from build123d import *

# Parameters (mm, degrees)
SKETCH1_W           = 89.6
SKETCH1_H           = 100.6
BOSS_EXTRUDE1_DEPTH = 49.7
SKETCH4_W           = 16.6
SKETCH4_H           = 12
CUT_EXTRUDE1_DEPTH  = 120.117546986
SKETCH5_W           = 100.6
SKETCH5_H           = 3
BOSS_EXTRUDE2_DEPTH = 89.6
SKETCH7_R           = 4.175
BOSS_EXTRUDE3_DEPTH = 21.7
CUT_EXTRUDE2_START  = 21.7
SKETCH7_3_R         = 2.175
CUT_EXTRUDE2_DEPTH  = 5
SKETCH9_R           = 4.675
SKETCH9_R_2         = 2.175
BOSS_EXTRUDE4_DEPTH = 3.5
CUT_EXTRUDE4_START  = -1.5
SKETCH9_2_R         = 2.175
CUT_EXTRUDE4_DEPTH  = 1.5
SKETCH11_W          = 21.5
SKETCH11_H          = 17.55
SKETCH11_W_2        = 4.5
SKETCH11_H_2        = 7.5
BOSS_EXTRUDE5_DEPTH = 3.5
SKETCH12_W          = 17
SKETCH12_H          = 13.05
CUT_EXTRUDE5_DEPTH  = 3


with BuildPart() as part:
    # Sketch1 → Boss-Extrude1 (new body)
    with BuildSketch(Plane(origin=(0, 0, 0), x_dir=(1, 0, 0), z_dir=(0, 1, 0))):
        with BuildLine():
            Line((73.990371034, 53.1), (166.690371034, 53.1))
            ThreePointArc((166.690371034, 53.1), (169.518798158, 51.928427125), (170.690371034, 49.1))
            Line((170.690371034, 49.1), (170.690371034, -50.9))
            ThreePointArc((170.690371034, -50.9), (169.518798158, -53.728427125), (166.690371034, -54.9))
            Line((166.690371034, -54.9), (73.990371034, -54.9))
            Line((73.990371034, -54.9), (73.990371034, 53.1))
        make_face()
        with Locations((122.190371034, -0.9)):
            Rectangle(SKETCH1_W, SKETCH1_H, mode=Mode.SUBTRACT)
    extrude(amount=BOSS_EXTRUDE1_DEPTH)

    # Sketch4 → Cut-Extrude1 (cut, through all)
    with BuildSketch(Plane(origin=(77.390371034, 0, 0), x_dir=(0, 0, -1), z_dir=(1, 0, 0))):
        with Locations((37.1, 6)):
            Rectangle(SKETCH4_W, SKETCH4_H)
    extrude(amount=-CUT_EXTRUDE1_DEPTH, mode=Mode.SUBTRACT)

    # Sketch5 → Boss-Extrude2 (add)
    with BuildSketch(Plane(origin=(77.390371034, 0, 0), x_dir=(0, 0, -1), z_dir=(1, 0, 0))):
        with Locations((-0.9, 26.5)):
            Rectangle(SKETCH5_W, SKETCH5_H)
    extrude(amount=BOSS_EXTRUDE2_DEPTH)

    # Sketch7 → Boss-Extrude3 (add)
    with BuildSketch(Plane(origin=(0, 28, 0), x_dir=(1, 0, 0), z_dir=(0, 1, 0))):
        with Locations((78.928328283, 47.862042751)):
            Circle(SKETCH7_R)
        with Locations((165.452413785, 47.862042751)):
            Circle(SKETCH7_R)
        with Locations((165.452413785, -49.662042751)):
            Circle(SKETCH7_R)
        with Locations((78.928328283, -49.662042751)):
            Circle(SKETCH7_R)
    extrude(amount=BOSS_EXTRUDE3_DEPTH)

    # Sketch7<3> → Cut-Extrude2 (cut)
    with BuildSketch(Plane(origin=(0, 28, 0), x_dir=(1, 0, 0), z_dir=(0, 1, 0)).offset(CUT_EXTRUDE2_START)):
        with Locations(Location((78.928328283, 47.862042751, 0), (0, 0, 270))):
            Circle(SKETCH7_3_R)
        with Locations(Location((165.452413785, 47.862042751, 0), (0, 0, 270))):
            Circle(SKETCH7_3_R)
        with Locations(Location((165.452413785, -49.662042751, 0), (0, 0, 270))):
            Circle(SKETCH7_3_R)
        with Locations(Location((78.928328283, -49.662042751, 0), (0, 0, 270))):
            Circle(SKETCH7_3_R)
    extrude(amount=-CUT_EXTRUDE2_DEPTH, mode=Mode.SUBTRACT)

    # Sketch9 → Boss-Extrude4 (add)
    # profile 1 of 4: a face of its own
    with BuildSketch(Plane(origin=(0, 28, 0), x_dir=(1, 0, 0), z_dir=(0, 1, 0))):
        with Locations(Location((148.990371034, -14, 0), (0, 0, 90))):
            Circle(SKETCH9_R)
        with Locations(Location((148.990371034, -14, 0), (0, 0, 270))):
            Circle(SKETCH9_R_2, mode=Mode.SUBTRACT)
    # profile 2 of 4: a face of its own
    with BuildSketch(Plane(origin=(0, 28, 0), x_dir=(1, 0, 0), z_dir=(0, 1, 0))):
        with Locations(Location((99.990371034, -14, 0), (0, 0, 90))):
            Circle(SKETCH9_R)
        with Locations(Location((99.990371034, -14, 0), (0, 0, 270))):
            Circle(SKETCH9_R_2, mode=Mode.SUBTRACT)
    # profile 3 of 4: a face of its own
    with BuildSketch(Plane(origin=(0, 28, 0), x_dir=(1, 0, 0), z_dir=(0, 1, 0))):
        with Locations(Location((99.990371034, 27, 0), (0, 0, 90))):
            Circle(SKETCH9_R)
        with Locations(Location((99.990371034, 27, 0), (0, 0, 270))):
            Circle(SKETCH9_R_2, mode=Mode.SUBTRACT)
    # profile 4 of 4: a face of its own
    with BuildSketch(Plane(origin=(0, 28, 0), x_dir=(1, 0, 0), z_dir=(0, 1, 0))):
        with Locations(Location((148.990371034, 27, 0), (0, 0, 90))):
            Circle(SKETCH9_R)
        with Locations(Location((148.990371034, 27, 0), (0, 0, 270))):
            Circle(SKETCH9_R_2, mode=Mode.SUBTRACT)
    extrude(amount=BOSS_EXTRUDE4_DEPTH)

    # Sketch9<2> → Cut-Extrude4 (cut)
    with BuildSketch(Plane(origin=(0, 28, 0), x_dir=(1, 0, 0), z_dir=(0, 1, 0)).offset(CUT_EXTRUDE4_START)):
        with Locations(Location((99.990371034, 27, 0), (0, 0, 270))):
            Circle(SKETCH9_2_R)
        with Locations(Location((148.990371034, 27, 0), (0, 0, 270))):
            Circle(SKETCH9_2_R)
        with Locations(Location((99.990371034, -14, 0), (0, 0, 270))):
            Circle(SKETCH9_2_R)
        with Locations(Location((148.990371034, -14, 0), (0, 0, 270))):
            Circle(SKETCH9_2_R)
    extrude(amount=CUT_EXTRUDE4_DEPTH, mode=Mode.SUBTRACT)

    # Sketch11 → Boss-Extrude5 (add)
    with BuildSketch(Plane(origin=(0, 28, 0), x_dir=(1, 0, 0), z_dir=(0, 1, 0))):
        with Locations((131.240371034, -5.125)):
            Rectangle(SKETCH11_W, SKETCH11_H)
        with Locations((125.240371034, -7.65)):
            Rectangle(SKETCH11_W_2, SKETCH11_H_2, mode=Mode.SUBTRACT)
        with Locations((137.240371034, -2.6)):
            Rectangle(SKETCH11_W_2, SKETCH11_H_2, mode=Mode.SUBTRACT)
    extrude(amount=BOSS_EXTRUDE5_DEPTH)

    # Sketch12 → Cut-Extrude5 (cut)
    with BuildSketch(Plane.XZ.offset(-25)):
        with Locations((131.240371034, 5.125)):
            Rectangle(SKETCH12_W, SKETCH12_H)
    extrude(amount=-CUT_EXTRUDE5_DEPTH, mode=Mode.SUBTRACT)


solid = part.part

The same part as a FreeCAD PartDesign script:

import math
import FreeCAD as App
import Part
import Sketcher

V = App.Vector
Q = App.Units.Quantity


def add_polygon(sketch, points):
    """Adds a closed chain of lines whose ends are joined by coincident constraints."""
    first, n = sketch.GeometryCount, len(points)
    for a, b in zip(points, points[1:] + points[:1]):
        sketch.addGeometry(Part.LineSegment(App.Vector(*a, 0), App.Vector(*b, 0)), False)
    for i in range(n):
        sketch.addConstraint(Sketcher.Constraint("Coincident", first + i, 2, first + (i + 1) % n, 1))

doc = App.newDocument("Part")
body = doc.addObject("PartDesign::Body", "Body")

sketch1 = body.newObject("Sketcher::SketchObject", "Sketch")
sketch1.AttachmentSupport = (doc.getObject("XZ_Plane"), [""])
sketch1.MapMode = "FlatFace"
sketch1.addGeometry(Part.LineSegment(V(166.690371, -53.1, 0), V(73.990371, -53.1, 0)), False)
sketch1.addGeometry(Part.LineSegment(V(73.990371, -53.1, 0), V(73.990371, 54.9, 0)), False)
sketch1.addGeometry(Part.LineSegment(V(73.990371, 54.9, 0), V(166.690371, 54.9, 0)), False)
sketch1.addGeometry(Part.ArcOfCircle(Part.Circle(V(166.690371, 50.9, 0), V(0, 0, 1), 4), math.radians(0), math.radians(90)), False)
sketch1.addGeometry(Part.LineSegment(V(170.690371, 50.9, 0), V(170.690371, -49.1, 0)), False)
sketch1.addGeometry(Part.ArcOfCircle(Part.Circle(V(166.690371, -49.1, 0), V(0, 0, 1), 4), math.radians(-90), math.radians(0)), False)
add_polygon(sketch1, [(77.390371, 51.2), (77.390371, -49.4), (166.990371, -49.4), (166.990371, 51.2)])
sketch1.addConstraint([
    Sketcher.Constraint("Coincident", 0, 2, 1, 1),
    Sketcher.Constraint("Coincident", 1, 2, 2, 1),
    Sketcher.Constraint("Tangent", 2, 2, 3, 2),
    Sketcher.Constraint("Tangent", 3, 1, 4, 1),
    Sketcher.Constraint("Tangent", 4, 2, 5, 2),
    Sketcher.Constraint("Tangent", 5, 1, 0, 1),
    Sketcher.Constraint("Horizontal", 0),
    Sketcher.Constraint("Vertical", 1),
    Sketcher.Constraint("Horizontal", 2),
    Sketcher.Constraint("Vertical", 4),
    Sketcher.Constraint("Vertical", 6),
    Sketcher.Constraint("Horizontal", 7),
    Sketcher.Constraint("Vertical", 8),
    Sketcher.Constraint("Horizontal", 9),
    Sketcher.Constraint("Equal", 3, 5),
    Sketcher.Constraint("Radius", 3, Q("4 mm")),
    Sketcher.Constraint("DistanceY", 1, 1, 1, 2, Q("108 mm")),
    Sketcher.Constraint("DistanceX", 0, 2, 0, 1, Q("92.7 mm")),
    Sketcher.Constraint("DistanceX", 7, 1, 7, 2, Q("89.6 mm")),
    Sketcher.Constraint("DistanceY", 6, 2, 6, 1, Q("100.6 mm")),
    Sketcher.Constraint("DistanceX", 0, 2, 7, 2, Q("93 mm")),
    Sketcher.Constraint("DistanceY", -1, 1, 3, 3, Q("50.9 mm")),
    Sketcher.Constraint("DistanceY", 6, 2, -1, 1, Q("49.4 mm")),
    Sketcher.Constraint("DistanceX", -1, 1, 3, 3, Q("166.690371 mm")),
])
pad1 = body.newObject("PartDesign::Pad", "Pad")
pad1.Profile = sketch1
pad1.Length = 49.7
pad1.Reversed = True

sketch2 = body.newObject("Sketcher::SketchObject", "Sketch001")
sketch2.AttachmentSupport = (doc.getObject("YZ_Plane"), [""])
sketch2.MapMode = "FlatFace"
sketch2.AttachmentOffset = App.Placement(V(0, 0, 77.390371), App.Rotation())
add_polygon(sketch2, [(12, -28.8), (0, -28.8), (0, -45.4), (12, -45.4)])
sketch2.addConstraint([
    Sketcher.Constraint("Horizontal", 0),
    Sketcher.Constraint("Vertical", 1),
    Sketcher.Constraint("Horizontal", 2),
    Sketcher.Constraint("Vertical", 3),
    Sketcher.Constraint("PointOnObject", 0, 2, -2),
    Sketcher.Constraint("DistanceX", 0, 2, 0, 1, Q("12 mm")),
    Sketcher.Constraint("DistanceY", 1, 2, 1, 1, Q("16.6 mm")),
    Sketcher.Constraint("DistanceY", 0, 2, -1, 1, Q("28.8 mm")),
])
pocket1 = body.newObject("PartDesign::Pocket", "Pocket")
pocket1.Profile = sketch2
pocket1.Type = "ThroughAll"

sketch3 = body.newObject("Sketcher::SketchObject", "Sketch002")
sketch3.AttachmentSupport = (doc.getObject("YZ_Plane"), [""])
sketch3.MapMode = "FlatFace"
sketch3.AttachmentOffset = App.Placement(V(0, 0, 77.390371), App.Rotation())
add_polygon(sketch3, [(28, 51.2), (25, 51.2), (25, -49.4), (28, -49.4)])
sketch3.addConstraint([
    Sketcher.Constraint("Horizontal", 0),
    Sketcher.Constraint("Vertical", 1),
    Sketcher.Constraint("Horizontal", 2),
    Sketcher.Constraint("Vertical", 3),
    Sketcher.Constraint("DistanceX", 0, 2, 0, 1, Q("3 mm")),
    Sketcher.Constraint("DistanceY", 1, 2, 1, 1, Q("100.6 mm")),
    Sketcher.Constraint("DistanceX", -1, 1, 0, 2, Q("25 mm")),
    Sketcher.Constraint("DistanceY", -1, 1, 0, 2, Q("51.2 mm")),
])
pad2 = body.newObject("PartDesign::Pad", "Pad001")
pad2.Profile = sketch3
pad2.Length = 89.6

sketch4 = body.newObject("Sketcher::SketchObject", "Sketch003")
sketch4.AttachmentSupport = (doc.getObject("XZ_Plane"), [""])
sketch4.MapMode = "FlatFace"
sketch4.AttachmentOffset = App.Placement(V(0, 0, -28), App.Rotation())
sketch4.addGeometry([
    Part.Circle(V(78.928328, -47.862043, 0), V(0, 0, 1), 4.175),
    Part.Circle(V(165.452414, -47.862043, 0), V(0, 0, 1), 4.175),
    Part.Circle(V(165.452414, 49.662043, 0), V(0, 0, 1), 4.175),
    Part.Circle(V(78.928328, 49.662043, 0), V(0, 0, 1), 4.175),
], False)
sketch4.addConstraint([
    Sketcher.Constraint("Equal", 0, 1),
    Sketcher.Constraint("Equal", 1, 2),
    Sketcher.Constraint("Equal", 2, 3),
    Sketcher.Constraint("Horizontal", 0, 3, 1, 3),
    Sketcher.Constraint("Horizontal", 2, 3, 3, 3),
    Sketcher.Constraint("Vertical", 1, 3, 2, 3),
    Sketcher.Constraint("Vertical", 0, 3, 3, 3),
    Sketcher.Constraint("Diameter", 0, Q("8.35 mm")),
    Sketcher.Constraint("DistanceX", -1, 1, 0, 3, Q("78.928328 mm")),
    Sketcher.Constraint("DistanceY", 0, 3, -1, 1, Q("47.862043 mm")),
    Sketcher.Constraint("DistanceX", -1, 1, 1, 3, Q("165.452414 mm")),
    Sketcher.Constraint("DistanceY", -1, 1, 2, 3, Q("49.662043 mm")),
])
pad3 = body.newObject("PartDesign::Pad", "Pad002")
pad3.Profile = sketch4
pad3.Length = 21.7
pad3.Reversed = True

sketch5 = body.newObject("Sketcher::SketchObject", "Sketch004")
sketch5.AttachmentSupport = (doc.getObject("XZ_Plane"), [""])
sketch5.MapMode = "FlatFace"
sketch5.AttachmentOffset = App.Placement(V(0, 0, -49.7), App.Rotation())
sketch5.addGeometry([
    Part.Circle(V(78.928328, -47.862043, 0), V(0, 0, 1), 2.175),
    Part.Circle(V(165.452414, -47.862043, 0), V(0, 0, 1), 2.175),
    Part.Circle(V(165.452414, 49.662043, 0), V(0, 0, 1), 2.175),
    Part.Circle(V(78.928328, 49.662043, 0), V(0, 0, 1), 2.175),
], False)
sketch5.addConstraint([
    Sketcher.Constraint("Equal", 0, 1),
    Sketcher.Constraint("Equal", 1, 2),
    Sketcher.Constraint("Equal", 2, 3),
    Sketcher.Constraint("Horizontal", 0, 3, 1, 3),
    Sketcher.Constraint("Horizontal", 2, 3, 3, 3),
    Sketcher.Constraint("Vertical", 1, 3, 2, 3),
    Sketcher.Constraint("Vertical", 0, 3, 3, 3),
    Sketcher.Constraint("Diameter", 0, Q("4.35 mm")),
    Sketcher.Constraint("DistanceX", -1, 1, 0, 3, Q("78.928328 mm")),
    Sketcher.Constraint("DistanceY", 0, 3, -1, 1, Q("47.862043 mm")),
    Sketcher.Constraint("DistanceX", -1, 1, 1, 3, Q("165.452414 mm")),
    Sketcher.Constraint("DistanceY", -1, 1, 2, 3, Q("49.662043 mm")),
])
pocket2 = body.newObject("PartDesign::Pocket", "Pocket001")
pocket2.Profile = sketch5
pocket2.Length = 5
pocket2.Reversed = True

sketch6 = body.newObject("Sketcher::SketchObject", "Sketch005")
sketch6.AttachmentSupport = (doc.getObject("XZ_Plane"), [""])
sketch6.MapMode = "FlatFace"
sketch6.AttachmentOffset = App.Placement(V(0, 0, -28), App.Rotation())
sketch6.addGeometry([
    Part.Circle(V(148.990371, 14, 0), V(0, 0, 1), 4.675),
    Part.Circle(V(148.990371, 14, 0), V(0, 0, 1), 2.175),
    Part.Circle(V(99.990371, 14, 0), V(0, 0, 1), 4.675),
    Part.Circle(V(99.990371, 14, 0), V(0, 0, 1), 2.175),
    Part.Circle(V(99.990371, -27, 0), V(0, 0, 1), 4.675),
    Part.Circle(V(99.990371, -27, 0), V(0, 0, 1), 2.175),
    Part.Circle(V(148.990371, -27, 0), V(0, 0, 1), 4.675),
    Part.Circle(V(148.990371, -27, 0), V(0, 0, 1), 2.175),
], False)
sketch6.addConstraint([
    Sketcher.Constraint("Coincident", 1, 3, 0, 3),
    Sketcher.Constraint("Coincident", 3, 3, 2, 3),
    Sketcher.Constraint("Coincident", 5, 3, 4, 3),
    Sketcher.Constraint("Coincident", 7, 3, 6, 3),
    Sketcher.Constraint("Equal", 0, 2),
    Sketcher.Constraint("Equal", 1, 3),
    Sketcher.Constraint("Equal", 2, 4),
    Sketcher.Constraint("Equal", 3, 5),
    Sketcher.Constraint("Equal", 4, 6),
    Sketcher.Constraint("Equal", 5, 7),
    Sketcher.Constraint("Horizontal", 1, 3, 2, 3),
    Sketcher.Constraint("Horizontal", 5, 3, 6, 3),
    Sketcher.Constraint("Vertical", 3, 3, 4, 3),
    Sketcher.Constraint("Vertical", 1, 3, 6, 3),
    Sketcher.Constraint("Diameter", 0, Q("9.35 mm")),
    Sketcher.Constraint("Diameter", 1, Q("4.35 mm")),
    Sketcher.Constraint("DistanceY", -1, 1, 0, 3, Q("14 mm")),
    Sketcher.Constraint("DistanceY", 4, 3, -1, 1, Q("27 mm")),
    Sketcher.Constraint("DistanceX", 2, 3, 0, 3, Q("49 mm")),
    Sketcher.Constraint("DistanceX", -1, 1, 0, 3, Q("148.990371 mm")),
])
pad4 = body.newObject("PartDesign::Pad", "Pad003")
pad4.Profile = sketch6
pad4.Length = 3.5
pad4.Reversed = True

sketch7 = body.newObject("Sketcher::SketchObject", "Sketch006")
sketch7.AttachmentSupport = (doc.getObject("XZ_Plane"), [""])
sketch7.MapMode = "FlatFace"
sketch7.AttachmentOffset = App.Placement(V(0, 0, -26.5), App.Rotation())
sketch7.addGeometry([
    Part.Circle(V(99.990371, -27, 0), V(0, 0, 1), 2.175),
    Part.Circle(V(148.990371, -27, 0), V(0, 0, 1), 2.175),
    Part.Circle(V(99.990371, 14, 0), V(0, 0, 1), 2.175),
    Part.Circle(V(148.990371, 14, 0), V(0, 0, 1), 2.175),
], False)
sketch7.addConstraint([
    Sketcher.Constraint("Equal", 0, 1),
    Sketcher.Constraint("Equal", 1, 2),
    Sketcher.Constraint("Equal", 2, 3),
    Sketcher.Constraint("Horizontal", 0, 3, 1, 3),
    Sketcher.Constraint("Horizontal", 2, 3, 3, 3),
    Sketcher.Constraint("Vertical", 0, 3, 2, 3),
    Sketcher.Constraint("Vertical", 1, 3, 3, 3),
    Sketcher.Constraint("Diameter", 0, Q("4.35 mm")),
    Sketcher.Constraint("DistanceY", 0, 3, -1, 1, Q("27 mm")),
    Sketcher.Constraint("DistanceY", -1, 1, 2, 3, Q("14 mm")),
    Sketcher.Constraint("DistanceX", 0, 3, 1, 3, Q("49 mm")),
    Sketcher.Constraint("DistanceX", -1, 1, 0, 3, Q("99.990371 mm")),
])
pocket3 = body.newObject("PartDesign::Pocket", "Pocket002")
pocket3.Profile = sketch7
pocket3.Length = 1.5

sketch8 = body.newObject("Sketcher::SketchObject", "Sketch007")
sketch8.AttachmentSupport = (doc.getObject("XZ_Plane"), [""])
sketch8.MapMode = "FlatFace"
sketch8.AttachmentOffset = App.Placement(V(0, 0, -28), App.Rotation())
add_polygon(sketch8, [(120.490371, -3.65), (120.490371, 13.9), (141.990371, 13.9), (141.990371, -3.65)])
add_polygon(sketch8, [(127.490371, 11.4), (122.990371, 11.4), (122.990371, 3.9), (127.490371, 3.9)])
add_polygon(sketch8, [(139.490371, 6.35), (134.990371, 6.35), (134.990371, -1.15), (139.490371, -1.15)])
sketch8.addConstraint([
    Sketcher.Constraint("Vertical", 0),
    Sketcher.Constraint("Horizontal", 1),
    Sketcher.Constraint("Vertical", 2),
    Sketcher.Constraint("Horizontal", 3),
    Sketcher.Constraint("Horizontal", 4),
    Sketcher.Constraint("Vertical", 5),
    Sketcher.Constraint("Horizontal", 6),
    Sketcher.Constraint("Vertical", 7),
    Sketcher.Constraint("Horizontal", 8),
    Sketcher.Constraint("Vertical", 9),
    Sketcher.Constraint("Horizontal", 10),
    Sketcher.Constraint("Vertical", 11),
    Sketcher.Constraint("Equal", 6, 8),
    Sketcher.Constraint("Equal", 7, 9),
    Sketcher.Constraint("DistanceX", 1, 1, 1, 2, Q("21.5 mm")),
    Sketcher.Constraint("DistanceX", 4, 2, 4, 1, Q("4.5 mm")),
    Sketcher.Constraint("DistanceY", 5, 2, 5, 1, Q("7.5 mm")),
    Sketcher.Constraint("DistanceX", 4, 2, 1, 2, Q("19 mm")),
    Sketcher.Constraint("DistanceY", 5, 2, 0, 2, Q("10 mm")),
    Sketcher.Constraint("DistanceX", 8, 2, 1, 2, Q("7 mm")),
    Sketcher.Constraint("DistanceY", 2, 2, 8, 2, Q("10 mm")),
    Sketcher.Constraint("DistanceY", 0, 1, 0, 2, Q("17.55 mm")),
    Sketcher.Constraint("DistanceY", -1, 1, 0, 2, Q("13.9 mm")),
    Sketcher.Constraint("DistanceX", -1, 1, 0, 2, Q("120.490371 mm")),
])
pad5 = body.newObject("PartDesign::Pad", "Pad004")
pad5.Profile = sketch8
pad5.Length = 3.5
pad5.Reversed = True

sketch9 = body.newObject("Sketcher::SketchObject", "Sketch008")
sketch9.AttachmentSupport = (doc.getObject("XZ_Plane"), [""])
sketch9.MapMode = "FlatFace"
sketch9.AttachmentOffset = App.Placement(V(0, 0, -25), App.Rotation())
add_polygon(sketch9, [(122.740371, 11.65), (122.740371, -1.4), (139.740371, -1.4), (139.740371, 11.65)])
sketch9.addConstraint([
    Sketcher.Constraint("Vertical", 0),
    Sketcher.Constraint("Horizontal", 1),
    Sketcher.Constraint("Vertical", 2),
    Sketcher.Constraint("Horizontal", 3),
    Sketcher.Constraint("DistanceX", 1, 1, 1, 2, Q("17 mm")),
    Sketcher.Constraint("DistanceY", 0, 2, 0, 1, Q("13.05 mm")),
    Sketcher.Constraint("DistanceY", 0, 2, -1, 1, Q("1.4 mm")),
    Sketcher.Constraint("DistanceX", -1, 1, 0, 2, Q("122.740371 mm")),
])
pocket4 = body.newObject("PartDesign::Pocket", "Pocket003")
pocket4.Profile = sketch9
pocket4.Length = 3

doc.recompute()
